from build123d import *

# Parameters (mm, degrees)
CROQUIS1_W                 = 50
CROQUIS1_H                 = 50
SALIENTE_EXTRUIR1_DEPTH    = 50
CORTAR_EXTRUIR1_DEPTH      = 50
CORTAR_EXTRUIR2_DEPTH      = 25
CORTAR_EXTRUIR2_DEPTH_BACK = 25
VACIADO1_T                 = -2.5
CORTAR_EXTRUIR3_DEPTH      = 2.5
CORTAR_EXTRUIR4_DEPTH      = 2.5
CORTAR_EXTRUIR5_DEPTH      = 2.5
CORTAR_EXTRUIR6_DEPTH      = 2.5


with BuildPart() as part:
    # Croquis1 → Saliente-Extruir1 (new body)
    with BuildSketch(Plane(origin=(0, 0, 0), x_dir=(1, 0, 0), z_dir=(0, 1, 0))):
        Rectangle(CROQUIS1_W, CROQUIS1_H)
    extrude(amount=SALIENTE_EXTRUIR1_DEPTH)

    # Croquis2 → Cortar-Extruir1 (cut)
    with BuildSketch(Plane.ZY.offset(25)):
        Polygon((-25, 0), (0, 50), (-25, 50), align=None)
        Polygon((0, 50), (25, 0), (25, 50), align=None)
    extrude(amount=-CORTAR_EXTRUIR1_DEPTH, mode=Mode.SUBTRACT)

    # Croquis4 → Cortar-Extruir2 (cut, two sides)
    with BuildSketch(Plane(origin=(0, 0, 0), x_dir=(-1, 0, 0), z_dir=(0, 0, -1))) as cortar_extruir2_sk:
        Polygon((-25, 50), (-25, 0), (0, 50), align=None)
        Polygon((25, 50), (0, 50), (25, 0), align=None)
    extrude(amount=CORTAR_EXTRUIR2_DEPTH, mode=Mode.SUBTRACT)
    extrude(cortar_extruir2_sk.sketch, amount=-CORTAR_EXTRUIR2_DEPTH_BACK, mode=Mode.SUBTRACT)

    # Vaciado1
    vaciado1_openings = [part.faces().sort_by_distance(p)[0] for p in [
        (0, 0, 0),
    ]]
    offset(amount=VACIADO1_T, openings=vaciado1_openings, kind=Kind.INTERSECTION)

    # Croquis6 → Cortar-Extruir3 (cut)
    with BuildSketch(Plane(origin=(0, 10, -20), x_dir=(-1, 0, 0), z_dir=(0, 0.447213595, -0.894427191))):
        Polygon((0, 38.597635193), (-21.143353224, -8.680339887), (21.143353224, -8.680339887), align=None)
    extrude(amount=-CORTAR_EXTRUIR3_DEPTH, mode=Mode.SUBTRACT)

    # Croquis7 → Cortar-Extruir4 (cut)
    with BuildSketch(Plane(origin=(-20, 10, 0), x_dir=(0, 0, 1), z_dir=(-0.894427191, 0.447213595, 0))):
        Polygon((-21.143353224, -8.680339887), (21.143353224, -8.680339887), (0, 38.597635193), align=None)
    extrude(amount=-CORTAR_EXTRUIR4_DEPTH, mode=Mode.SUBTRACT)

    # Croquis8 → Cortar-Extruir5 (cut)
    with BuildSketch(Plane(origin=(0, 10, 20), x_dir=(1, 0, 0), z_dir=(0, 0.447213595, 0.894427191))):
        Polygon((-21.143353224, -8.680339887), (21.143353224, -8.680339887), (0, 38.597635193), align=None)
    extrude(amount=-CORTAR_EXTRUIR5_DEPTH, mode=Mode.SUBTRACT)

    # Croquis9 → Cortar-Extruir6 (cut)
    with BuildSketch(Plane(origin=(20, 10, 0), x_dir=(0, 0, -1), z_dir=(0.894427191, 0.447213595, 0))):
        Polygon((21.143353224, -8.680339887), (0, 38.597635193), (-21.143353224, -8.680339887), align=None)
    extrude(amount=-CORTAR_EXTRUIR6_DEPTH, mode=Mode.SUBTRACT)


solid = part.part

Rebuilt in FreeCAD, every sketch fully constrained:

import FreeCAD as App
import Part
import Sketcher
from FreeCAD import Vector


def faces_at(feature, points):
    """Names of the faces that lie closest to the given points."""
    faces = feature.Shape.Faces
    near = lambda p: min(range(len(faces)), key=lambda i: faces[i].distToShape(Part.Vertex(*p))[0])
    return sorted({f"Face{near(p) + 1}" for p in points})


def add_polygon(sketch, points):
    """Adds a closed chain of lines whose ends are joined by coincident constraints."""
    first, n = sketch.GeometryCount, len(points)
    for a, b in zip(points, points[1:] + points[:1]):
        sketch.addGeometry(Part.LineSegment(App.Vector(*a, 0), App.Vector(*b, 0)), False)
    for i in range(n):
        sketch.addConstraint(Sketcher.Constraint("Coincident", first + i, 2, first + (i + 1) % n, 1))

doc = App.newDocument("Part")
params = doc.addObject("Spreadsheet::Sheet", "Params")
for row, (alias, value) in enumerate([
    ("sketch1_width", "50 mm"),
    ("pad1_length", "50 mm"),
    ("sketch2_width", "50 mm"),
    ("sketch2_height", "25 mm"),
    ("pocket1_length", "50 mm"),
    ("sketch3_width", "25 mm"),
    ("sketch3_height", "50 mm"),
    ("thickness_wall", "2.5 mm"),
    ("pocket3_length", "2.5 mm"),
    ("pocket4_length", "2.5 mm"),
    ("pocket5_length", "2.5 mm"),
    ("pocket6_length", "2.5 mm"),
], start=1):
    params.set(f"A{row}", alias)
    params.set(f"B{row}", "=" + value)
    params.setAlias(f"B{row}", alias)

body = doc.addObject("PartDesign::Body", "Body")

# Sketch on XZ plane
sketch1 = doc.addObject("Sketcher::SketchObject", "Sketch")
body.addObject(sketch1)
sketch1.AttachmentSupport = (doc.XZ_Plane, [""])
sketch1.MapMode = "FlatFace"
add_polygon(sketch1, [(-25, -25), (-25, 25), (25, 25), (25, -25)])  # lines 0-3
sketch1.addConstraint(Sketcher.Constraint("Vertical", 0))
sketch1.addConstraint(Sketcher.Constraint("Horizontal", 1))
sketch1.addConstraint(Sketcher.Constraint("Vertical", 2))
sketch1.addConstraint(Sketcher.Constraint("Horizontal", 3))
sketch1.addConstraint(Sketcher.Constraint("Symmetric", 0, 2, 2, 2, -1, 1))
sketch1.addConstraint(Sketcher.Constraint("Equal", 3, 0))
sketch1.addConstraint(Sketcher.Constraint("DistanceX", 1, 1, 1, 2, 50.0))
sketch1.setExpression("Constraints[10]", "Params.sketch1_width")
pad1 = doc.addObject("PartDesign::Pad", "Pad")
body.addObject(pad1)
pad1.Profile = sketch1
pad1.setExpression("Length", "Params.pad1_length")
pad1.Reversed = True

# Sketch on YZ plane
sketch2 = doc.addObject("Sketcher::SketchObject", "Sketch001")
body.addObject(sketch2)
sketch2.AttachmentSupport = (doc.YZ_Plane, [""])
sketch2.MapMode = "FlatFace"
sketch2.AttachmentOffset = App.Placement(Vector(0, 0, -25), App.Rotation())
add_polygon(sketch2, [(0, -25), (50, 0), (50, -25)])  # lines 0-2
add_polygon(sketch2, [(50, 0), (0, 25), (50, 25)])  # lines 3-5
sketch2.addConstraint(Sketcher.Constraint("Vertical", 1))
sketch2.addConstraint(Sketcher.Constraint("Horizontal", 2))
sketch2.addConstraint(Sketcher.Constraint("Horizontal", 4))
sketch2.addConstraint(Sketcher.Constraint("Vertical", 5))
sketch2.addConstraint(Sketcher.Constraint("Coincident", 5, 2, 0, 2))
sketch2.addConstraint(Sketcher.Constraint("Symmetric", 2, 2, 3, 2, -1, 1))
sketch2.addConstraint(Sketcher.Constraint("PointOnObject", 0, 2, -1))
sketch2.addConstraint(Sketcher.Constraint("PointOnObject", 2, 2, -2))
sketch2.addConstraint(Sketcher.Constraint("DistanceX", 2, 2, 2, 1, 50.0))
sketch2.addConstraint(Sketcher.Constraint("DistanceY", 1, 2, 1, 1, 25.0))
sketch2.setExpression("Constraints[14]", "Params.sketch2_width")
sketch2.setExpression("Constraints[15]", "Params.sketch2_height")
pocket1 = doc.addObject("PartDesign::Pocket", "Pocket")
body.addObject(pocket1)
pocket1.Profile = sketch2
pocket1.setExpression("Length", "Params.pocket1_length")
pocket1.Reversed = True

# Sketch on XY plane
sketch3 = doc.addObject("Sketcher::SketchObject", "Sketch002")
body.addObject(sketch3)
sketch3.AttachmentSupport = (doc.XY_Plane, [""])
sketch3.MapMode = "FlatFace"
add_polygon(sketch3, [(25, 50), (25, 0), (0, 50)])  # lines 0-2
add_polygon(sketch3, [(-25, 50), (0, 50), (-25, 0)])  # lines 3-5
sketch3.addConstraint(Sketcher.Constraint("Vertical", 0))
sketch3.addConstraint(Sketcher.Constraint("Horizontal", 2))
sketch3.addConstraint(Sketcher.Constraint("Horizontal", 3))
sketch3.addConstraint(Sketcher.Constraint("Vertical", 5))
sketch3.addConstraint(Sketcher.Constraint("Coincident", 3, 2, 1, 2))
sketch3.addConstraint(Sketcher.Constraint("Symmetric", 0, 2, 4, 2, -1, 1))
sketch3.addConstraint(Sketcher.Constraint("PointOnObject", 0, 2, -1))
sketch3.addConstraint(Sketcher.Constraint("PointOnObject", 1, 2, -2))
sketch3.addConstraint(Sketcher.Constraint("DistanceX", 2, 1, 2, 2, 25.0))
sketch3.addConstraint(Sketcher.Constraint("DistanceY", 0, 2, 0, 1, 50.0))
sketch3.setExpression("Constraints[14]", "Params.sketch3_width")
sketch3.setExpression("Constraints[15]", "Params.sketch3_height")
pocket2 = doc.addObject("PartDesign::Pocket", "Pocket001")
body.addObject(pocket2)
pocket2.Profile = sketch3
pocket2.Type = "ThroughAll"
pocket2.Midplane = True
doc.recompute()

thickness = doc.addObject("PartDesign::Thickness", "Thickness")
body.addObject(thickness)
thickness.Base = (pocket2, faces_at(pocket2, [(0, 0, 0)]))
thickness.setExpression("Value", "Params.thickness_wall")
thickness.Reversed = True
thickness.Join = "Intersection"

# Sketch on an angled plane
sketch4 = doc.addObject("Sketcher::SketchObject", "Sketch003")
body.addObject(sketch4)
sketch4.Placement = App.Placement(Vector(0, 10, -20), App.Rotation(Vector(-1, 0, 0), Vector(0, 0.894427191, 0.447213595), Vector(0, 0.447213595, -0.894427191), "ZXY"))
add_polygon(sketch4, [(0, 39), (-21, -9), (21, -9)])  # lines 0-2
sketch4.addConstraint(Sketcher.Constraint("Horizontal", 1))
sketch4.addConstraint(Sketcher.Constraint("PointOnObject", 2, 2, -2))
sketch4.addConstraint(Sketcher.Constraint("Equal", 0, 2))
sketch4.addConstraint(Sketcher.Constraint("DistanceX", 1, 1, 1, 2, 42.286706))
sketch4.addConstraint(Sketcher.Constraint("DistanceY", 0, 2, -1, 1, 8.68034))
sketch4.addConstraint(Sketcher.Constraint("Distance", 0, 51.790427))
pocket3 = doc.addObject("PartDesign::Pocket", "Pocket002")
body.addObject(pocket3)
pocket3.Profile = sketch4
pocket3.setExpression("Length", "Params.pocket3_length")

# Sketch on an angled plane
sketch5 = doc.addObject("Sketcher::SketchObject", "Sketch004")
body.addObject(sketch5)
sketch5.Placement = App.Placement(Vector(-20, 10, 0), App.Rotation(Vector(0, 0, 1), Vector(0.447213595, 0.894427191, 0), Vector(-0.894427191, 0.447213595, 0), "ZXY"))
add_polygon(sketch5, [(-21, -9), (21, -9), (0, 39)])  # lines 0-2
sketch5.addConstraint(Sketcher.Constraint("Horizontal", 0))
sketch5.addConstraint(Sketcher.Constraint("PointOnObject", 1, 2, -2))
sketch5.addConstraint(Sketcher.Constraint("Equal", 1, 2))
sketch5.addConstraint(Sketcher.Constraint("DistanceX", 0, 1, 0, 2, 42.286706))
sketch5.addConstraint(Sketcher.Constraint("DistanceY", 0, 2, -1, 1, 8.68034))
sketch5.addConstraint(Sketcher.Constraint("Distance", 1, 51.790427))
pocket4 = doc.addObject("PartDesign::Pocket", "Pocket003")
body.addObject(pocket4)
pocket4.Profile = sketch5
pocket4.setExpression("Length", "Params.pocket4_length")

# Sketch on an angled plane
sketch6 = doc.addObject("Sketcher::SketchObject", "Sketch005")
body.addObject(sketch6)
sketch6.Placement = App.Placement(Vector(0, 10, 20), App.Rotation(Vector(1, 0, 0), Vector(0, 0.894427191, -0.447213595), Vector(0, 0.447213595, 0.894427191), "ZXY"))
add_polygon(sketch6, [(-21, -9), (21, -9), (0, 39)])  # lines 0-2
sketch6.addConstraint(Sketcher.Constraint("Horizontal", 0))
sketch6.addConstraint(Sketcher.Constraint("PointOnObject", 1, 2, -2))
sketch6.addConstraint(Sketcher.Constraint("Equal", 1, 2))
sketch6.addConstraint(Sketcher.Constraint("DistanceX", 0, 1, 0, 2, 42.286706))
sketch6.addConstraint(Sketcher.Constraint("DistanceY", 0, 2, -1, 1, 8.68034))
sketch6.addConstraint(Sketcher.Constraint("Distance", 1, 51.790427))
pocket5 = doc.addObject("PartDesign::Pocket", "Pocket004")
body.addObject(pocket5)
pocket5.Profile = sketch6
pocket5.setExpression("Length", "Params.pocket5_length")

# Sketch on an angled plane
sketch7 = doc.addObject("Sketcher::SketchObject", "Sketch006")
body.addObject(sketch7)
sketch7.Placement = App.Placement(Vector(20, 10, 0), App.Rotation(Vector(0, 0, -1), Vector(-0.447213595, 0.894427191, 0), Vector(0.894427191, 0.447213595, 0), "ZXY"))
add_polygon(sketch7, [(21, -9), (0, 39), (-21, -9)])  # lines 0-2
sketch7.addConstraint(Sketcher.Constraint("Horizontal", 2))
sketch7.addConstraint(Sketcher.Constraint("PointOnObject", 0, 2, -2))
sketch7.addConstraint(Sketcher.Constraint("Equal", 0, 1))
sketch7.addConstraint(Sketcher.Constraint("DistanceX", 2, 1, 2, 2, 42.286706))
sketch7.addConstraint(Sketcher.Constraint("DistanceY", 1, 2, -1, 1, 8.68034))
sketch7.addConstraint(Sketcher.Constraint("Distance", 0, 51.790427))
pocket6 = doc.addObject("PartDesign::Pocket", "Pocket005")
body.addObject(pocket6)
pocket6.Profile = sketch7
pocket6.setExpression("Length", "Params.pocket6_length")

doc.recompute()
